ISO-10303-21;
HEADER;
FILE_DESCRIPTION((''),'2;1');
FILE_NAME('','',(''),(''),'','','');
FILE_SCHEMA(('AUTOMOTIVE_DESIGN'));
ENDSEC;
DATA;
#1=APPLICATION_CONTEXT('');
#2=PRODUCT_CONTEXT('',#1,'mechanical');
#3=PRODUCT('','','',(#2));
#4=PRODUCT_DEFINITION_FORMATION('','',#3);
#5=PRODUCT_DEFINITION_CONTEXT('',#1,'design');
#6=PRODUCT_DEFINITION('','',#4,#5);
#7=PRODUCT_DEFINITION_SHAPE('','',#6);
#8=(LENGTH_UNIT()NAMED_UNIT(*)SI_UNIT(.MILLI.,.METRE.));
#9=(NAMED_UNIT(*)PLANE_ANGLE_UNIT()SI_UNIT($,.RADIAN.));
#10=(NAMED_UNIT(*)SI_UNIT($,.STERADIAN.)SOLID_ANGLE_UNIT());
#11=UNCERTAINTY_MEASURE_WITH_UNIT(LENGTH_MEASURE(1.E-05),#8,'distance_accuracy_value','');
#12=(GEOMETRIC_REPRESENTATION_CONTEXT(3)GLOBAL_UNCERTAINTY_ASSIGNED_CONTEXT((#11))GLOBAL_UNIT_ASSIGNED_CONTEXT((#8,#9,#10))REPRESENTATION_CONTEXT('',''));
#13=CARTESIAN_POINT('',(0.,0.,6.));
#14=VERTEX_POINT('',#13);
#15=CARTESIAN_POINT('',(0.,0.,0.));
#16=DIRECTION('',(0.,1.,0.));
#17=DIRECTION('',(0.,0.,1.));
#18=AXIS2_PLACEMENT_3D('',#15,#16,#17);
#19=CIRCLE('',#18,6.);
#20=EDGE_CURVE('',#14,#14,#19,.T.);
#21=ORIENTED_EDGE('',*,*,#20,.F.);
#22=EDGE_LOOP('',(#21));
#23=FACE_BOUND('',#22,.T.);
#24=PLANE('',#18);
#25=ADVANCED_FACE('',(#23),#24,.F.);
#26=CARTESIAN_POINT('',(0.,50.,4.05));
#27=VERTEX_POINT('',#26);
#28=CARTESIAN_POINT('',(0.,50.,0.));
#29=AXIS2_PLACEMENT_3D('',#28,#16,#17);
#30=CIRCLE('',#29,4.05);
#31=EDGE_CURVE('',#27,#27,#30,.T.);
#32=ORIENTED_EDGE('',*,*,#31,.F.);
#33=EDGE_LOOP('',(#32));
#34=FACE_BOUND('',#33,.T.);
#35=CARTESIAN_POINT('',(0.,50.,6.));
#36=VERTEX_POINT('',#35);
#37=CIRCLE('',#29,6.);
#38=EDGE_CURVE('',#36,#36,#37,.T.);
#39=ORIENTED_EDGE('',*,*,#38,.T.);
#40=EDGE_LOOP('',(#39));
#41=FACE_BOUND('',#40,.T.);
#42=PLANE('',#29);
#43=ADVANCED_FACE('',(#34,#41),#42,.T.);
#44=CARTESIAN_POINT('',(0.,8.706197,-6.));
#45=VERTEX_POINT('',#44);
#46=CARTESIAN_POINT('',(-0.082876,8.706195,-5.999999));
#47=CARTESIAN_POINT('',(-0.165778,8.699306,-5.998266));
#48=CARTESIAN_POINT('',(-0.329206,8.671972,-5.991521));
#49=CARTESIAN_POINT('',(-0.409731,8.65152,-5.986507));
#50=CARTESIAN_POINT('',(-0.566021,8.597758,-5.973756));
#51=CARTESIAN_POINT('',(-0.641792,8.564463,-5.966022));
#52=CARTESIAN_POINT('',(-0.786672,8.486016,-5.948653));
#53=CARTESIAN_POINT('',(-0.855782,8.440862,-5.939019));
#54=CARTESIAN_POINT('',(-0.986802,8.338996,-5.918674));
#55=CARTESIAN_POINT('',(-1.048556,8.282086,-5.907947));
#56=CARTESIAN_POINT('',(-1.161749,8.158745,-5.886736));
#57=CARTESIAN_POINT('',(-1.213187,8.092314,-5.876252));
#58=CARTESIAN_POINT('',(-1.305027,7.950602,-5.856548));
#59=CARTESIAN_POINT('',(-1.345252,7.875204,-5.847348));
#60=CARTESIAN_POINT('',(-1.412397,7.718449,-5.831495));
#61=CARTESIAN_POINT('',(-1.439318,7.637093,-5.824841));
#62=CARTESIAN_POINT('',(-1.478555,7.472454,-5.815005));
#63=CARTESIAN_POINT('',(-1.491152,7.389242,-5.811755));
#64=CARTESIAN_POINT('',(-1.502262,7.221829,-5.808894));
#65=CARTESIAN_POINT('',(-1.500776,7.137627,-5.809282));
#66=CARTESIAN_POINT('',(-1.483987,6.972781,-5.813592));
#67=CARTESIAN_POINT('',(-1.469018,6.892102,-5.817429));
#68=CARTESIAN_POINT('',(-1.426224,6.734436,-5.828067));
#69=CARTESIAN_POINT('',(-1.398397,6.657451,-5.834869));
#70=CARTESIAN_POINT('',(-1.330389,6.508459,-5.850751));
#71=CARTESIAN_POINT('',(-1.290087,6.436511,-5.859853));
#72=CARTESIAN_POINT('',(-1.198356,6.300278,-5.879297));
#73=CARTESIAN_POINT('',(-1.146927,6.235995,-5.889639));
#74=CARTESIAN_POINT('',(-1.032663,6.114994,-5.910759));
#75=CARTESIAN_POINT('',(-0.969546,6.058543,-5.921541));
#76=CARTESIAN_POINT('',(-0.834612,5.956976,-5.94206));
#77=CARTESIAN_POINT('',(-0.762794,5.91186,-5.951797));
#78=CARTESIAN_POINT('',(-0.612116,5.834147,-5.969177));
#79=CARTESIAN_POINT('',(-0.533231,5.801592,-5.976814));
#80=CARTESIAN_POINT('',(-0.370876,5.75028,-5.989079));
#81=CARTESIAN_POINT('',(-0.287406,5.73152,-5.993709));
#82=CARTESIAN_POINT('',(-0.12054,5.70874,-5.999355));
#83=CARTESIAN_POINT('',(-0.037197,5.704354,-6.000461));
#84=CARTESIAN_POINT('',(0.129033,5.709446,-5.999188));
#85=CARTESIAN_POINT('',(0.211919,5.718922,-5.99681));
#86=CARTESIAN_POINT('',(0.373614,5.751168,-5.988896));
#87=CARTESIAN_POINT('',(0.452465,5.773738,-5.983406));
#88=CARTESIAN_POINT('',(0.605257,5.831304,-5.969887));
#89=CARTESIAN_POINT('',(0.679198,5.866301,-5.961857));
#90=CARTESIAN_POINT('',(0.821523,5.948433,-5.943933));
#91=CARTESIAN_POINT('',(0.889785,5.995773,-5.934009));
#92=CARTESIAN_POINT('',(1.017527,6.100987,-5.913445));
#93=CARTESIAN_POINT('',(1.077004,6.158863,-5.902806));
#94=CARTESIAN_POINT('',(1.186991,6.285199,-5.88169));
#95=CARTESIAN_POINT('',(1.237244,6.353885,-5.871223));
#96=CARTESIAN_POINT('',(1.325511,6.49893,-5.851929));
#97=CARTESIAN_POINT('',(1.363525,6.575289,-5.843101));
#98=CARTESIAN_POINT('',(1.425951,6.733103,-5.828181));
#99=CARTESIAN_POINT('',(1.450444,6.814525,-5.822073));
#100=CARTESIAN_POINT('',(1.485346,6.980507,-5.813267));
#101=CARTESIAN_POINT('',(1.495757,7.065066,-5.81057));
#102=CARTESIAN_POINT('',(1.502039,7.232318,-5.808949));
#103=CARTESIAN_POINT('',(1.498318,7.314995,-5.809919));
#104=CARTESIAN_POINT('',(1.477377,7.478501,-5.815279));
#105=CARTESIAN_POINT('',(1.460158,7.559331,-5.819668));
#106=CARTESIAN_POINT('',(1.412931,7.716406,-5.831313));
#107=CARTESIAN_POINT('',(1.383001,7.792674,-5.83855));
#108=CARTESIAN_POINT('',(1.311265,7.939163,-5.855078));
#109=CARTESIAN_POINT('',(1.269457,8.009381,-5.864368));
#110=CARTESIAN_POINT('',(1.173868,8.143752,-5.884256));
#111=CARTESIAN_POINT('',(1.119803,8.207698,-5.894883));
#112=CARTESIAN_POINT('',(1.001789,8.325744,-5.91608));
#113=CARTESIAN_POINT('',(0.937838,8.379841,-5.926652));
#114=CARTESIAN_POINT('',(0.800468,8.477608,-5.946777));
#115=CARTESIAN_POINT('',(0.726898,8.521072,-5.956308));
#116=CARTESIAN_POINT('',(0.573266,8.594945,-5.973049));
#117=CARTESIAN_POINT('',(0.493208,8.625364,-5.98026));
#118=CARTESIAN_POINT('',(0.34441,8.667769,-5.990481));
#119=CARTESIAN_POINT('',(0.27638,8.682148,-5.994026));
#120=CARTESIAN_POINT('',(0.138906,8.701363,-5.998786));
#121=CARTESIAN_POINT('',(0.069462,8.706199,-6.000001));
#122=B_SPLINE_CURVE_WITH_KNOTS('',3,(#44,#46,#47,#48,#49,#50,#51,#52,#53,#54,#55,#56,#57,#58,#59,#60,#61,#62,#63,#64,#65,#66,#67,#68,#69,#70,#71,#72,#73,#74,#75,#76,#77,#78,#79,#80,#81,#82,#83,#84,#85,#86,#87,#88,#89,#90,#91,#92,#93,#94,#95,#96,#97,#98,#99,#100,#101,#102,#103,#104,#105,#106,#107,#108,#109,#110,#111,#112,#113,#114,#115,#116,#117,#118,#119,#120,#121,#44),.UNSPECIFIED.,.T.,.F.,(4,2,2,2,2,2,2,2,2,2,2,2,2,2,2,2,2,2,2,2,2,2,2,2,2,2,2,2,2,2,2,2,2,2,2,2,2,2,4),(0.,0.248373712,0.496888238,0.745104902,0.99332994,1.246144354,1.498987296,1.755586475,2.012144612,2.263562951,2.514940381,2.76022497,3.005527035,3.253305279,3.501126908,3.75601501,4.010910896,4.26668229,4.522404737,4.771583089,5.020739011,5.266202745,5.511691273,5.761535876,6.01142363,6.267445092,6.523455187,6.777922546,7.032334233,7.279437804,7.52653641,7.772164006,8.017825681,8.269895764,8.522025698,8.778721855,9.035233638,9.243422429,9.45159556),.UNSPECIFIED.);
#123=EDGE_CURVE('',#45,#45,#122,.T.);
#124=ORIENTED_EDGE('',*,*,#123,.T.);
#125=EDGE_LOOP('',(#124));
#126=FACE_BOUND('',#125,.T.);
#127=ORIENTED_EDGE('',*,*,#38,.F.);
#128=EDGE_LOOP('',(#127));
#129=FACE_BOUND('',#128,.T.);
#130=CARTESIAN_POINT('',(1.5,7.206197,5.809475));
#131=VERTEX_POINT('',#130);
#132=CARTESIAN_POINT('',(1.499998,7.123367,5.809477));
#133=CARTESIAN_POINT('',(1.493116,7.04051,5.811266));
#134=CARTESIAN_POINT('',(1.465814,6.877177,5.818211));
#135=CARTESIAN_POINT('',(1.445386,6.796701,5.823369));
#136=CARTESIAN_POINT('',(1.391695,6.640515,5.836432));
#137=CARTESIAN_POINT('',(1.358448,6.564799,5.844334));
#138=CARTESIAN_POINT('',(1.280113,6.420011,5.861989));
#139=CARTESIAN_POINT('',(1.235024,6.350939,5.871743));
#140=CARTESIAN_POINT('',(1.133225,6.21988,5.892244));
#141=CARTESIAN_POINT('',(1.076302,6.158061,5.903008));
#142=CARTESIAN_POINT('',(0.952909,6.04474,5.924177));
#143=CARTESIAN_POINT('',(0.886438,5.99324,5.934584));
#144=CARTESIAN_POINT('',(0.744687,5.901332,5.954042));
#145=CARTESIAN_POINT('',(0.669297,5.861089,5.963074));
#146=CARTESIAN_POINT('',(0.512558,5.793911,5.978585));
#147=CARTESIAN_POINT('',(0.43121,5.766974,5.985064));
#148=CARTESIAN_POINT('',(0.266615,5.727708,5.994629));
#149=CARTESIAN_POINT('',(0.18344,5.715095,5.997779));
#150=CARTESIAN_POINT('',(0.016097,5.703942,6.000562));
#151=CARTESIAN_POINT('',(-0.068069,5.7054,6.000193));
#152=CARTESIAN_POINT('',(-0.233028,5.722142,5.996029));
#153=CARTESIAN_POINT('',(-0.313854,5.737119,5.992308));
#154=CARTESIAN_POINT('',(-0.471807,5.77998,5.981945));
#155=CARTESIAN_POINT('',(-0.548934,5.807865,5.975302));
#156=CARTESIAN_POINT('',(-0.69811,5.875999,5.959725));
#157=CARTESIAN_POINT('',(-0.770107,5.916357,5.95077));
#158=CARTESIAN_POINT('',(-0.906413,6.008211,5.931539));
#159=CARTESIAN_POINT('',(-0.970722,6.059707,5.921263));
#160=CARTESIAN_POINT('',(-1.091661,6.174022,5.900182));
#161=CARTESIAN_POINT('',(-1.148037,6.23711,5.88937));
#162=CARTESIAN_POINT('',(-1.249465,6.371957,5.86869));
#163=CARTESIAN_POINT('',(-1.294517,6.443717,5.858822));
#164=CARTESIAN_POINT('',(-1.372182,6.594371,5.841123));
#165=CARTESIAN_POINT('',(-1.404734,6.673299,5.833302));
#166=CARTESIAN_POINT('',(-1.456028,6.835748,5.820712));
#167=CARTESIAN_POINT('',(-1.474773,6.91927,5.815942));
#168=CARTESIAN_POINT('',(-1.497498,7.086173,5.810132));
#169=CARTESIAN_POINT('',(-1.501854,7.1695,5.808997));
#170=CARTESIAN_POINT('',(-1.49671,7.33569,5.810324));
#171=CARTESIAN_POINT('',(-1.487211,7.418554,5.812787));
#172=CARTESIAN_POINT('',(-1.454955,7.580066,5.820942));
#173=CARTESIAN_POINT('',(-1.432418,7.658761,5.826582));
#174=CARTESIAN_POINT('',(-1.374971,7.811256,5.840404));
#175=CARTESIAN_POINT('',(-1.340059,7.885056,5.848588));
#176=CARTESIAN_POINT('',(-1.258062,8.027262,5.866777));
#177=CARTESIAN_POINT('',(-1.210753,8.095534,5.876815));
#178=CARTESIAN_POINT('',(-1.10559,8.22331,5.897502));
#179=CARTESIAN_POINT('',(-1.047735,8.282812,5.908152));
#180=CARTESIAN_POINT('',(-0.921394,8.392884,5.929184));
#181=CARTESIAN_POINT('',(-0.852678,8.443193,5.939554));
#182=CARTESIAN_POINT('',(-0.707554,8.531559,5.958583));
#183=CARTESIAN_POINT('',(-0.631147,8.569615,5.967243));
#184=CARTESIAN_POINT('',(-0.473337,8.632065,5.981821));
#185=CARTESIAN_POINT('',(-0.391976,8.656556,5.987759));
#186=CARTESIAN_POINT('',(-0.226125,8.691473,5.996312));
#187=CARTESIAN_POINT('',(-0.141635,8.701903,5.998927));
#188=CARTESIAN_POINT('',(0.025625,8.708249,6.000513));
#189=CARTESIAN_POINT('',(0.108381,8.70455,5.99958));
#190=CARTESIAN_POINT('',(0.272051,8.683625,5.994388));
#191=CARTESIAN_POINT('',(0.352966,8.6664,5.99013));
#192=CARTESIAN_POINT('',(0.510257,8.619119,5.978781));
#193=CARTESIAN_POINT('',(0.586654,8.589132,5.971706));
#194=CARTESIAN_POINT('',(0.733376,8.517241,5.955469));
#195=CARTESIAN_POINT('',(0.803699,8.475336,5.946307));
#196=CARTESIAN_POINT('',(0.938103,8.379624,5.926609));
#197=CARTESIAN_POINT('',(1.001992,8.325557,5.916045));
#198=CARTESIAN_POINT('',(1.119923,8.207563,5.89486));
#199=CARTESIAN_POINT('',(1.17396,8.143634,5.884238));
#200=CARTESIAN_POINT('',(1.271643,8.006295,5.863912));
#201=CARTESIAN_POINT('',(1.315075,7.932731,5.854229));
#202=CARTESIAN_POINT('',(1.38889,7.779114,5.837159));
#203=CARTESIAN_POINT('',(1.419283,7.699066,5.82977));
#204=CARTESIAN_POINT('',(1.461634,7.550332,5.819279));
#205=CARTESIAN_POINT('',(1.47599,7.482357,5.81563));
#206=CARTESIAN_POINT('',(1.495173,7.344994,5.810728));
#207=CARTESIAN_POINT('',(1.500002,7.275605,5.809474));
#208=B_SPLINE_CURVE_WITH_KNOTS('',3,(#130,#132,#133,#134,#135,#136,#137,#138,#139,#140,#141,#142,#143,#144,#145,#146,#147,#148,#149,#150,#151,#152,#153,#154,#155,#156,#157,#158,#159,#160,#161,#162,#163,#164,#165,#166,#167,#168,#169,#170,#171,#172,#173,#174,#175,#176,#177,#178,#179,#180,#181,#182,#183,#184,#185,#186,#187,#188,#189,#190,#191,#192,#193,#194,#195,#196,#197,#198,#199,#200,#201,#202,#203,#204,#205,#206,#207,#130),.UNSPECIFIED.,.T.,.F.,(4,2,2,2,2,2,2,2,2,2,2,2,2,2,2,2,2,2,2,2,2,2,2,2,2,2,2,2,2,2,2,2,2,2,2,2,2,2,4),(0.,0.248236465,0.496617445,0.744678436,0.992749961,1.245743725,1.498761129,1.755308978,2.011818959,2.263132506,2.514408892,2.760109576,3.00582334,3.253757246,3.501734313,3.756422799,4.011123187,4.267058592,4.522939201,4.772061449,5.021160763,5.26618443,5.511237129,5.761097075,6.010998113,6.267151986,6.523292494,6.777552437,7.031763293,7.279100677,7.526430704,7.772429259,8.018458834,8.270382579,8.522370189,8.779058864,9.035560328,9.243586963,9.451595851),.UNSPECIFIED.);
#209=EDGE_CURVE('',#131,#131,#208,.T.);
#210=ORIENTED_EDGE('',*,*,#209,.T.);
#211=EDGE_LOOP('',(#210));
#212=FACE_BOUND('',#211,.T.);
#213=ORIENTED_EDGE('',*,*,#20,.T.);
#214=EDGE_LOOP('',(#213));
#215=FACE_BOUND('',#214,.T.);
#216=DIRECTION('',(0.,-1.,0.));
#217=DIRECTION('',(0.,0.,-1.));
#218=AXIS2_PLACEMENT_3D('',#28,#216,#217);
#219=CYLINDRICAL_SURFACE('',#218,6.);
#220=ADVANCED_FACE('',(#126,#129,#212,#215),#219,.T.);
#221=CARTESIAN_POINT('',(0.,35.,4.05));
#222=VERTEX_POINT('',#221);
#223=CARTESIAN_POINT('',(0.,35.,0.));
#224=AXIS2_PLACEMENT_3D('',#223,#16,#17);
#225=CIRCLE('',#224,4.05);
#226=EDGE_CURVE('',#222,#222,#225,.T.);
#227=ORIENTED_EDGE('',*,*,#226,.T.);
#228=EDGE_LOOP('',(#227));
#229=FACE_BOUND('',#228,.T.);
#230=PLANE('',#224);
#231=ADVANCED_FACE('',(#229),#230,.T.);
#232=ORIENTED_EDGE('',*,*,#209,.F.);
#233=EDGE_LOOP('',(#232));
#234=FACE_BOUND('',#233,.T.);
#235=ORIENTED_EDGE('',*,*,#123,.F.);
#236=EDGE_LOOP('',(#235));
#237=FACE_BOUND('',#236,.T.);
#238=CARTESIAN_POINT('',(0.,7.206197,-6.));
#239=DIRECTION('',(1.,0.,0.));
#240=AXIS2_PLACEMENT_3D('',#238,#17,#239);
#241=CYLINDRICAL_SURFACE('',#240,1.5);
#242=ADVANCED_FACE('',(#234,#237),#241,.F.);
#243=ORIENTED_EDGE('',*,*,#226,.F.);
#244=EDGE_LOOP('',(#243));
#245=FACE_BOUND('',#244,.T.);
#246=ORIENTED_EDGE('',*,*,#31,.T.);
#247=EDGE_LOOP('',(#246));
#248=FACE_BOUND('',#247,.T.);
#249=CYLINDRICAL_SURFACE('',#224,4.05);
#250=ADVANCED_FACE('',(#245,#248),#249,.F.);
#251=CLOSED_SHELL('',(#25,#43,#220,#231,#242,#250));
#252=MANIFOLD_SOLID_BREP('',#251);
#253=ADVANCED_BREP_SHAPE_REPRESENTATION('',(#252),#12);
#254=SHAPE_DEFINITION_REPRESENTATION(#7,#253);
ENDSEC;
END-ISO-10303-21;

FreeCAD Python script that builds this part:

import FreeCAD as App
import Part
import Sketcher

doc = App.newDocument("Part")
body = doc.addObject("PartDesign::Body", "Body")

# Sketch on XZ plane
sketch1 = body.newObject("Sketcher::SketchObject", "Sketch")
sketch1.AttachmentSupport = (doc.getObject("XZ_Plane"), [""])
sketch1.MapMode = "FlatFace"
sketch1.addGeometry(Part.Circle(App.Vector(0, 0, 0), App.Vector(0, 0, 1), 6), False)
sketch1.addConstraint(Sketcher.Constraint("Coincident", 0, 3, -1, 1))
sketch1.addConstraint(Sketcher.Constraint("Diameter", 0, 12.0))
pad1 = body.newObject("PartDesign::Pad", "Pad")
pad1.Profile = sketch1
pad1.Length = 50
pad1.Reversed = True

# Sketch on XZ plane
sketch2 = body.newObject("Sketcher::SketchObject", "Sketch001")
sketch2.AttachmentSupport = (doc.getObject("XZ_Plane"), [""])
sketch2.MapMode = "FlatFace"
sketch2.AttachmentOffset = App.Placement(App.Vector(0, 0, -50), App.Rotation())
sketch2.addGeometry(Part.Circle(App.Vector(0, 0, 0), App.Vector(0, 0, 1), 4), False)
sketch2.addConstraint(Sketcher.Constraint("Coincident", 0, 3, -1, 1))
sketch2.addConstraint(Sketcher.Constraint("Diameter", 0, 8.1))
pocket1 = body.newObject("PartDesign::Pocket", "Pocket")
pocket1.Profile = sketch2
pocket1.Length = 15
pocket1.Reversed = True

# Sketch on XY plane
sketch3 = body.newObject("Sketcher::SketchObject", "Sketch002")
sketch3.AttachmentSupport = (doc.getObject("XY_Plane"), [""])
sketch3.MapMode = "FlatFace"
sketch3.addGeometry(Part.Circle(App.Vector(0, 7.2, 0), App.Vector(0, 0, 1), 1.5), False)
sketch3.addConstraint(Sketcher.Constraint("PointOnObject", 0, 3, -2))
sketch3.addConstraint(Sketcher.Constraint("Diameter", 0, 3.0))
sketch3.addConstraint(Sketcher.Constraint("DistanceY", -1, 1, 0, 3, 7.206197))
pocket2 = body.newObject("PartDesign::Pocket", "Pocket001")
pocket2.Profile = sketch3
pocket2.Type = "ThroughAll"
pocket2.Midplane = True

doc.recompute()
